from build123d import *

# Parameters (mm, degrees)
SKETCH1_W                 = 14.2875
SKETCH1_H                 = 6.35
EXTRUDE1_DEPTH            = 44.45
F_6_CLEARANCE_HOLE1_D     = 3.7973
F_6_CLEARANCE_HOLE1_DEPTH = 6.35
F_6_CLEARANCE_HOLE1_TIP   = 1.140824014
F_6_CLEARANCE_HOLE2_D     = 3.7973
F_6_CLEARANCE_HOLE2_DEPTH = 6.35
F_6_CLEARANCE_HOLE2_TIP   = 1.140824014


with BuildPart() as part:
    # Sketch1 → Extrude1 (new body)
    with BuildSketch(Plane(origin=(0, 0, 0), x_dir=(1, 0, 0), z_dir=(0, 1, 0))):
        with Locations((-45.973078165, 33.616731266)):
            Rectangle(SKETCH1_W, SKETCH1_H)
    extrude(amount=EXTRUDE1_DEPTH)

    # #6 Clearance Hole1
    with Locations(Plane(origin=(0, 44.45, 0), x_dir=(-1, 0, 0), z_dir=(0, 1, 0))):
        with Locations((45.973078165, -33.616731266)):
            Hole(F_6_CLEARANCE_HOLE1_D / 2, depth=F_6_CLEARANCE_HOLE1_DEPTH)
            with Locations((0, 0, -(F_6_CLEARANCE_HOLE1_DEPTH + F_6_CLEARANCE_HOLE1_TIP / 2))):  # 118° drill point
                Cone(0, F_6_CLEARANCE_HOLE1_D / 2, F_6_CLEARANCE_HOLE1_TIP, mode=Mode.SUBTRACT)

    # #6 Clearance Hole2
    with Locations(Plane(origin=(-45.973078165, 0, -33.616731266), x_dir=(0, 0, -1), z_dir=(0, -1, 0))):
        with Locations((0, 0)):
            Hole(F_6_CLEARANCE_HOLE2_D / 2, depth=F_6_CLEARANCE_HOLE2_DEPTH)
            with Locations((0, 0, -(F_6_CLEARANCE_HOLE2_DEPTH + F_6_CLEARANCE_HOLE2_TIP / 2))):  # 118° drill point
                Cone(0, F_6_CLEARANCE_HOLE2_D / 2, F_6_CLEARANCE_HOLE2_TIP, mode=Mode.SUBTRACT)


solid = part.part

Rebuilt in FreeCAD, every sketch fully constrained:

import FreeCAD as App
import Part
import Sketcher
from FreeCAD import Vector
Q = App.Units.Quantity

doc = App.newDocument("Part")
body = doc.addObject("PartDesign::Body", "Body")

sketch1 = body.newObject("Sketcher::SketchObject", "Sketch")
sketch1.AttachmentSupport = (doc.getObject("XZ_Plane"), [""])
sketch1.MapMode = "FlatFace"
sketch1.addGeometry([
    Part.LineSegment(Vector(-53, -37, 0), Vector(-53, -30, 0)),
    Part.LineSegment(Vector(-53, -30, 0), Vector(-39, -30, 0)),
    Part.LineSegment(Vector(-39, -30, 0), Vector(-39, -37, 0)),
    Part.LineSegment(Vector(-39, -37, 0), Vector(-53, -37, 0)),
], False)
sketch1.addConstraint([
    Sketcher.Constraint("Coincident", 0, 2, 1, 1),
    Sketcher.Constraint("Coincident", 1, 2, 2, 1),
    Sketcher.Constraint("Coincident", 2, 2, 3, 1),
    Sketcher.Constraint("Coincident", 3, 2, 0, 1),
    Sketcher.Constraint("Vertical", 0),
    Sketcher.Constraint("Horizontal", 1),
    Sketcher.Constraint("Vertical", 2),
    Sketcher.Constraint("Horizontal", 3),
    Sketcher.Constraint("DistanceY", 0, 1, 0, 2, Q("0.25 in")),
    Sketcher.Constraint("DistanceX", 1, 1, 1, 2, Q("0.5625 in")),
    Sketcher.Constraint("DistanceX", 0, 2, -1, 1, 53.116828),
    Sketcher.Constraint("DistanceY", 0, 2, -1, 1, 30.441731),
])
pad1 = body.newObject("PartDesign::Pad", "Pad")
pad1.Profile = sketch1
pad1.Length = Q("1.75 in")
pad1.Reversed = True

sketch2 = body.newObject("Sketcher::SketchObject", "Sketch001")
sketch2.AttachmentSupport = (doc.getObject("XZ_Plane"), [""])
sketch2.MapMode = "FlatFace"
sketch2.AttachmentOffset = App.Placement(Vector(0, 0, -1.75 * 25.4), App.Rotation())
sketch2.addGeometry(Part.Circle(Vector(-46, -33.6, 0), Vector(0, 0, 1), 1.9), False)
sketch2.addConstraint([
    Sketcher.Constraint("Diameter", 0, Q("0.1495 in")),
    Sketcher.Constraint("DistanceX", 0, 3, -1, 1, 45.973078),
    Sketcher.Constraint("DistanceY", 0, 3, -1, 1, 33.616731),
])
doc.recompute()
hole = body.newObject("PartDesign::Hole", "Hole")
hole.Profile = sketch2
hole.ThreadType = "None"
hole.Diameter = Q("0.1495 in")
hole.DepthType = "Dimension"
hole.Depth = Q("0.25 in")
hole.DrillPoint = "Angled"
hole.DrillPointAngle = 118
hole.Reversed = True

sketch3 = body.newObject("Sketcher::SketchObject", "Sketch002")
sketch3.AttachmentSupport = (doc.getObject("XZ_Plane"), [""])
sketch3.MapMode = "FlatFace"
sketch3.addGeometry(Part.Circle(Vector(-46, -33.6, 0), Vector(0, 0, 1), 1.9), False)
sketch3.addConstraint([
    Sketcher.Constraint("Diameter", 0, Q("0.1495 in")),
    Sketcher.Constraint("DistanceX", 0, 3, -1, 1, 45.973078),
    Sketcher.Constraint("DistanceY", 0, 3, -1, 1, 33.616731),
])
doc.recompute()
hole2 = body.newObject("PartDesign::Hole", "Hole001")
hole2.Profile = sketch3
hole2.ThreadType = "None"
hole2.Diameter = Q("0.1495 in")
hole2.DepthType = "Dimension"
hole2.Depth = Q("0.25 in")
hole2.DrillPoint = "Angled"
hole2.DrillPointAngle = 118

doc.recompute()
